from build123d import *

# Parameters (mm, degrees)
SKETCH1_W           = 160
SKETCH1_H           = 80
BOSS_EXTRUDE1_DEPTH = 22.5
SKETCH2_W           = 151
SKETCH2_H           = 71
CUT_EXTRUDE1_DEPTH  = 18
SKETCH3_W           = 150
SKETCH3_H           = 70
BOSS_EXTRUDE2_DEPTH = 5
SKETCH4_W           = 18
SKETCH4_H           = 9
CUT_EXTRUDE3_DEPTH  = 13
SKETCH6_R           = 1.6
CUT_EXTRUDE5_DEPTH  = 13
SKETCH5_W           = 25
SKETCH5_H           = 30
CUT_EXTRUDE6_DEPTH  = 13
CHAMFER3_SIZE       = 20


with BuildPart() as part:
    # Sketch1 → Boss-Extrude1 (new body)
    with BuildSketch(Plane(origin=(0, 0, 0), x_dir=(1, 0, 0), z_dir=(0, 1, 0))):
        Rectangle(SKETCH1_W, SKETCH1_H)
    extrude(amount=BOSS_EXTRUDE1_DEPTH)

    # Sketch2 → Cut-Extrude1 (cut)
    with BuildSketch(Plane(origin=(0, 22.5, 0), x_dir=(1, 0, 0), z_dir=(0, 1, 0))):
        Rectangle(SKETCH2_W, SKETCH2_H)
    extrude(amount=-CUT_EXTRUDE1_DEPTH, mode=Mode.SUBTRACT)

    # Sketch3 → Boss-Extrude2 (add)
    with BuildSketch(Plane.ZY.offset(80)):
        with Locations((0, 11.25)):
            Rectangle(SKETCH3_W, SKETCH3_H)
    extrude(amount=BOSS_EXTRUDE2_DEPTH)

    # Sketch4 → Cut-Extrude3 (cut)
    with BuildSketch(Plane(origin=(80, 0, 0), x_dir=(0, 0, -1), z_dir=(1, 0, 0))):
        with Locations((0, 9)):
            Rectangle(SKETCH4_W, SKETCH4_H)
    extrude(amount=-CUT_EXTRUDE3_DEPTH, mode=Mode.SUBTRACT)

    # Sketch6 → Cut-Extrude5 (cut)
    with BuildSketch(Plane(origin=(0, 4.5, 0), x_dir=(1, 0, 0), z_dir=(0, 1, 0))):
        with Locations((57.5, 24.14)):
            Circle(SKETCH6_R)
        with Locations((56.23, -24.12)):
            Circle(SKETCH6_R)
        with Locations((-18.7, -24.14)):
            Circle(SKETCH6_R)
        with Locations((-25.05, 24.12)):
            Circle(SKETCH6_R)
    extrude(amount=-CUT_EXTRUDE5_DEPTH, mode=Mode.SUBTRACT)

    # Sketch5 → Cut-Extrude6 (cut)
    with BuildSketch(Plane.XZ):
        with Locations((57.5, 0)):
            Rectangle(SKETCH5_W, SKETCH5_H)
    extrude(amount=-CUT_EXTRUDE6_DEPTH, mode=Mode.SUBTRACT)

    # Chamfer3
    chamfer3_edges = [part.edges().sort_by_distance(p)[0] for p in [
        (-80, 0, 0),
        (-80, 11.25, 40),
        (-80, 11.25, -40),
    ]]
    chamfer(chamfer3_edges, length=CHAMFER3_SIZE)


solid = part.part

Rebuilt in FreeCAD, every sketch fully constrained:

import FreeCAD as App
import Part
import Sketcher
from FreeCAD import Vector
Q = App.Units.Quantity


def edges_at(feature, points):
    """Names of the edges that pass closest to the given points."""
    edges = feature.Shape.Edges
    near = lambda p: min(range(len(edges)), key=lambda i: edges[i].distToShape(Part.Vertex(*p))[0])
    return sorted({f"Edge{near(p) + 1}" for p in points})

doc = App.newDocument("Part")
body = doc.addObject("PartDesign::Body", "Body")

# Sketch on XZ plane
sketch1 = body.newObject("Sketcher::SketchObject", "Sketch")
sketch1.AttachmentSupport = (doc.getObject("XZ_Plane"), [""])
sketch1.MapMode = "FlatFace"
sketch1.addGeometry([
    Part.LineSegment(Vector(-80, -40, 0), Vector(-80, 40, 0)),
    Part.LineSegment(Vector(-80, 40, 0), Vector(80, 40, 0)),
    Part.LineSegment(Vector(80, 40, 0), Vector(80, -40, 0)),
    Part.LineSegment(Vector(80, -40, 0), Vector(-80, -40, 0)),
], False)
sketch1.addConstraint([
    Sketcher.Constraint("Coincident", 0, 2, 1, 1),
    Sketcher.Constraint("Coincident", 1, 2, 2, 1),
    Sketcher.Constraint("Coincident", 2, 2, 3, 1),
    Sketcher.Constraint("Coincident", 3, 2, 0, 1),
    Sketcher.Constraint("Vertical", 0),
    Sketcher.Constraint("Horizontal", 1),
    Sketcher.Constraint("Vertical", 2),
    Sketcher.Constraint("Horizontal", 3),
    Sketcher.Constraint("Symmetric", 0, 2, 2, 2, -1, 1),
    Sketcher.Constraint("DistanceX", 1, 1, 1, 2, Q("160 mm")),
    Sketcher.Constraint("DistanceY", 0, 1, 0, 2, Q("80 mm")),
])
pad1 = body.newObject("PartDesign::Pad", "Pad")
pad1.Profile = sketch1
pad1.Length = 22.5
pad1.Reversed = True

# Sketch on XZ plane
sketch2 = body.newObject("Sketcher::SketchObject", "Sketch001")
sketch2.AttachmentSupport = (doc.getObject("XZ_Plane"), [""])
sketch2.MapMode = "FlatFace"
sketch2.AttachmentOffset = App.Placement(Vector(0, 0, -22.5), App.Rotation())
sketch2.addGeometry([
    Part.LineSegment(Vector(-76, -36, 0), Vector(-76, 36, 0)),
    Part.LineSegment(Vector(-76, 36, 0), Vector(76, 36, 0)),
    Part.LineSegment(Vector(76, 36, 0), Vector(76, -36, 0)),
    Part.LineSegment(Vector(76, -36, 0), Vector(-76, -36, 0)),
], False)
sketch2.addConstraint([
    Sketcher.Constraint("Coincident", 0, 2, 1, 1),
    Sketcher.Constraint("Coincident", 1, 2, 2, 1),
    Sketcher.Constraint("Coincident", 2, 2, 3, 1),
    Sketcher.Constraint("Coincident", 3, 2, 0, 1),
    Sketcher.Constraint("Vertical", 0),
    Sketcher.Constraint("Horizontal", 1),
    Sketcher.Constraint("Vertical", 2),
    Sketcher.Constraint("Horizontal", 3),
    Sketcher.Constraint("Symmetric", 0, 2, 2, 2, -1, 1),
    Sketcher.Constraint("DistanceX", 1, 1, 1, 2, Q("151 mm")),
    Sketcher.Constraint("DistanceY", 0, 1, 0, 2, Q("71 mm")),
])
pocket1 = body.newObject("PartDesign::Pocket", "Pocket")
pocket1.Profile = sketch2
pocket1.Length = 18
pocket1.Reversed = True

# Sketch on YZ plane
sketch3 = body.newObject("Sketcher::SketchObject", "Sketch002")
sketch3.AttachmentSupport = (doc.getObject("YZ_Plane"), [""])
sketch3.MapMode = "FlatFace"
sketch3.AttachmentOffset = App.Placement(Vector(0, 0, -80), App.Rotation())
sketch3.addGeometry([
    Part.LineSegment(Vector(46, -75, 0), Vector(-24, -75, 0)),
    Part.LineSegment(Vector(-24, -75, 0), Vector(-24, 75, 0)),
    Part.LineSegment(Vector(-24, 75, 0), Vector(46, 75, 0)),
    Part.LineSegment(Vector(46, 75, 0), Vector(46, -75, 0)),
], False)
sketch3.addConstraint([
    Sketcher.Constraint("Coincident", 0, 2, 1, 1),
    Sketcher.Constraint("Coincident", 1, 2, 2, 1),
    Sketcher.Constraint("Coincident", 2, 2, 3, 1),
    Sketcher.Constraint("Coincident", 3, 2, 0, 1),
    Sketcher.Constraint("Horizontal", 0),
    Sketcher.Constraint("Vertical", 1),
    Sketcher.Constraint("Horizontal", 2),
    Sketcher.Constraint("Vertical", 3),
    Sketcher.Constraint("DistanceX", 0, 2, 0, 1, Q("70 mm")),
    Sketcher.Constraint("DistanceY", 1, 1, 1, 2, Q("150 mm")),
    Sketcher.Constraint("DistanceY", 0, 2, -1, 1, Q("75 mm")),
    Sketcher.Constraint("DistanceX", 0, 2, -1, 1, Q("23.75 mm")),
])
pad2 = body.newObject("PartDesign::Pad", "Pad001")
pad2.Profile = sketch3
pad2.Length = 5
pad2.Reversed = True

# Sketch on YZ plane
sketch4 = body.newObject("Sketcher::SketchObject", "Sketch003")
sketch4.AttachmentSupport = (doc.getObject("YZ_Plane"), [""])
sketch4.MapMode = "FlatFace"
sketch4.AttachmentOffset = App.Placement(Vector(0, 0, 80), App.Rotation())
sketch4.addGeometry([
    Part.LineSegment(Vector(14, 9, 0), Vector(4, 9, 0)),
    Part.LineSegment(Vector(4, 9, 0), Vector(4, -9, 0)),
    Part.LineSegment(Vector(4, -9, 0), Vector(14, -9, 0)),
    Part.LineSegment(Vector(14, -9, 0), Vector(14, 9, 0)),
], False)
sketch4.addConstraint([
    Sketcher.Constraint("Coincident", 0, 2, 1, 1),
    Sketcher.Constraint("Coincident", 1, 2, 2, 1),
    Sketcher.Constraint("Coincident", 2, 2, 3, 1),
    Sketcher.Constraint("Coincident", 3, 2, 0, 1),
    Sketcher.Constraint("Horizontal", 0),
    Sketcher.Constraint("Vertical", 1),
    Sketcher.Constraint("Horizontal", 2),
    Sketcher.Constraint("Vertical", 3),
    Sketcher.Constraint("DistanceX", 0, 2, 0, 1, Q("9 mm")),
    Sketcher.Constraint("DistanceY", 1, 2, 1, 1, Q("18 mm")),
    Sketcher.Constraint("DistanceY", -1, 1, 0, 2, Q("9 mm")),
    Sketcher.Constraint("DistanceX", -1, 1, 0, 2, Q("4.5 mm")),
])
pocket2 = body.newObject("PartDesign::Pocket", "Pocket001")
pocket2.Profile = sketch4
pocket2.Length = 13

# Sketch on XZ plane
sketch5 = body.newObject("Sketcher::SketchObject", "Sketch004")
sketch5.AttachmentSupport = (doc.getObject("XZ_Plane"), [""])
sketch5.MapMode = "FlatFace"
sketch5.AttachmentOffset = App.Placement(Vector(0, 0, -4.5), App.Rotation())
sketch5.addGeometry([
    Part.Circle(Vector(57.5, -24.1, 0), Vector(0, 0, 1), 1.6),
    Part.Circle(Vector(56.2, 24.1, 0), Vector(0, 0, 1), 1.6),
    Part.Circle(Vector(-18.7, 24.1, 0), Vector(0, 0, 1), 1.6),
    Part.Circle(Vector(-25.1, -24.1, 0), Vector(0, 0, 1), 1.6),
], False)
sketch5.addConstraint([
    Sketcher.Constraint("Equal", 0, 1),
    Sketcher.Constraint("Equal", 1, 2),
    Sketcher.Constraint("Equal", 2, 3),
    Sketcher.Constraint("Diameter", 0, Q("3.2 mm")),
    Sketcher.Constraint("DistanceX", -1, 1, 0, 3, Q("57.5 mm")),
    Sketcher.Constraint("DistanceX", 2, 3, -1, 1, Q("18.7 mm")),
    Sketcher.Constraint("DistanceY", 0, 3, -1, 1, Q("24.14 mm")),
    Sketcher.Constraint("DistanceX", -1, 1, 1, 3, Q("56.23 mm")),
    Sketcher.Constraint("DistanceY", -1, 1, 1, 3, Q("24.12 mm")),
    Sketcher.Constraint("DistanceY", -1, 1, 2, 3, Q("24.14 mm")),
    Sketcher.Constraint("DistanceX", 3, 3, -1, 1, Q("25.05 mm")),
    Sketcher.Constraint("DistanceY", 3, 3, -1, 1, Q("24.12 mm")),
])
pocket3 = body.newObject("PartDesign::Pocket", "Pocket002")
pocket3.Profile = sketch5
pocket3.Length = 13
pocket3.Reversed = True

# Sketch on XZ plane
sketch6 = body.newObject("Sketcher::SketchObject", "Sketch005")
sketch6.AttachmentSupport = (doc.getObject("XZ_Plane"), [""])
sketch6.MapMode = "FlatFace"
sketch6.addGeometry([
    Part.LineSegment(Vector(45, 15, 0), Vector(45, -15, 0)),
    Part.LineSegment(Vector(45, -15, 0), Vector(70, -15, 0)),
    Part.LineSegment(Vector(70, -15, 0), Vector(70, 15, 0)),
    Part.LineSegment(Vector(70, 15, 0), Vector(45, 15, 0)),
], False)
sketch6.addConstraint([
    Sketcher.Constraint("Coincident", 0, 2, 1, 1),
    Sketcher.Constraint("Coincident", 1, 2, 2, 1),
    Sketcher.Constraint("Coincident", 2, 2, 3, 1),
    Sketcher.Constraint("Coincident", 3, 2, 0, 1),
    Sketcher.Constraint("Vertical", 0),
    Sketcher.Constraint("Horizontal", 1),
    Sketcher.Constraint("Vertical", 2),
    Sketcher.Constraint("Horizontal", 3),
    Sketcher.Constraint("DistanceX", 1, 1, 1, 2, Q("25 mm")),
    Sketcher.Constraint("DistanceY", 0, 2, 0, 1, Q("30 mm")),
    Sketcher.Constraint("DistanceX", -1, 1, 0, 2, Q("45 mm")),
    Sketcher.Constraint("DistanceY", 0, 2, -1, 1, Q("15 mm")),
])
pocket4 = body.newObject("PartDesign::Pocket", "Pocket003")
pocket4.Profile = sketch6
pocket4.Length = 13
doc.recompute()

chamfer = body.newObject("PartDesign::Chamfer", "Chamfer")
chamfer.Base = (pocket4, edges_at(pocket4, [(-80, 0, 0), (-80, 11.25, 40), (-80, 11.25, -40)]))
chamfer.Size = 20

doc.recompute()
